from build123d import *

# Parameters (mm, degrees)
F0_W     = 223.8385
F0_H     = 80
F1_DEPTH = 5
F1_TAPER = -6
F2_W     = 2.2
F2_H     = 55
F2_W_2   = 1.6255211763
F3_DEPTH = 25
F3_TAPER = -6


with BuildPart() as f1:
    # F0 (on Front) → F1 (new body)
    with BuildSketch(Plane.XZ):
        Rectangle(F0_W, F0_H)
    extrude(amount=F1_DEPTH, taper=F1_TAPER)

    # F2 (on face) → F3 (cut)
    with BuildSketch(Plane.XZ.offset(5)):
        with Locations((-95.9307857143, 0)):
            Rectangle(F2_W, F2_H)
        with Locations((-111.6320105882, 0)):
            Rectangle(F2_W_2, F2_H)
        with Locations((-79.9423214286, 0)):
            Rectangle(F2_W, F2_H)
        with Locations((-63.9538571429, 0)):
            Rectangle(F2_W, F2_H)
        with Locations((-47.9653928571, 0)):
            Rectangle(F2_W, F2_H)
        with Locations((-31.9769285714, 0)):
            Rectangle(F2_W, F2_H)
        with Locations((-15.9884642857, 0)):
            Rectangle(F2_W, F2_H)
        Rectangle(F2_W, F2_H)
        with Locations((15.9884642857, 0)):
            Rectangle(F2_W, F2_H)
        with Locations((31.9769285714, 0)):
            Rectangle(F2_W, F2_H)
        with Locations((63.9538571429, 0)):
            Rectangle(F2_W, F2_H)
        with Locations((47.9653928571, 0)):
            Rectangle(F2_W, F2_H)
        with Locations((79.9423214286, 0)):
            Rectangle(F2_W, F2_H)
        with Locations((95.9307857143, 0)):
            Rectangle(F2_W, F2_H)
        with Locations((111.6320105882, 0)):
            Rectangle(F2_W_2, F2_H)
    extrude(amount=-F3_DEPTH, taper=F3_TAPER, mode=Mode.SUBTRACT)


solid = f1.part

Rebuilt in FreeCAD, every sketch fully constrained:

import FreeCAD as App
import Part
import Sketcher
from FreeCAD import Vector
Q = App.Units.Quantity

doc = App.newDocument("Part")
params = doc.addObject("Spreadsheet::Sheet", "Params")
for row, (alias, value) in enumerate([
    ("sketch1_height", "80 mm"),
    ("pad1_length", "5 mm"),
    ("pad1_taper", "6 deg"),
    ("sketch2_height", "55 mm"),
    ("sketch2_width", "2.2 mm"),
    ("pocket1_length", "25 mm"),
    ("pocket1_taper", "6 deg"),
], start=1):
    params.set(f"A{row}", alias)
    params.set(f"B{row}", "=" + value)
    params.setAlias(f"B{row}", alias)

body = doc.addObject("PartDesign::Body", "Body")

# Sketch on XZ plane
sketch1 = body.newObject("Sketcher::SketchObject", "Sketch")
sketch1.AttachmentSupport = (doc.getObject("XZ_Plane"), [""])
sketch1.MapMode = "FlatFace"
sketch1.addGeometry(Part.LineSegment(Vector(-111.91925, 40, 0), Vector(-111.91925, -40, 0)), False)
sketch1.addGeometry(Part.LineSegment(Vector(-111.91925, -40, 0), Vector(111.91925, -40, 0)), False)
sketch1.addGeometry(Part.LineSegment(Vector(111.91925, -40, 0), Vector(111.91925, 40, 0)), False)
sketch1.addGeometry(Part.LineSegment(Vector(111.91925, 40, 0), Vector(-111.91925, 40, 0)), False)
sketch1.addConstraint(Sketcher.Constraint("Coincident", 0, 2, 1, 1))
sketch1.addConstraint(Sketcher.Constraint("Coincident", 1, 2, 2, 1))
sketch1.addConstraint(Sketcher.Constraint("Coincident", 2, 2, 3, 1))
sketch1.addConstraint(Sketcher.Constraint("Coincident", 3, 2, 0, 1))
sketch1.addConstraint(Sketcher.Constraint("Vertical", 0))
sketch1.addConstraint(Sketcher.Constraint("Horizontal", 1))
sketch1.addConstraint(Sketcher.Constraint("Vertical", 2))
sketch1.addConstraint(Sketcher.Constraint("Horizontal", 3))
sketch1.addConstraint(Sketcher.Constraint("Symmetric", 0, 2, 2, 2, -1, 1))
sketch1.addConstraint(Sketcher.Constraint("DistanceY", 0, 2, 0, 1, Q("80 mm")))
sketch1.addConstraint(Sketcher.Constraint("DistanceX", 1, 1, 1, 2, Q("223.8385 mm")))
sketch1.setExpression("Constraints[9]", "Params.sketch1_height")
pad1 = body.newObject("PartDesign::Pad", "Pad")
pad1.Profile = sketch1
pad1.setExpression("Length", "Params.pad1_length")
pad1.setExpression("TaperAngle", "Params.pad1_taper")

# Sketch on XZ plane
sketch2 = body.newObject("Sketcher::SketchObject", "Sketch001")
sketch2.AttachmentSupport = (doc.getObject("XZ_Plane"), [""])
sketch2.MapMode = "FlatFace"
sketch2.AttachmentOffset = App.Placement(Vector(0, 0, 5), App.Rotation())
sketch2.addGeometry(Part.LineSegment(Vector(-97.030786, 27.5, 0), Vector(-97.030786, -27.5, 0)), False)
sketch2.addGeometry(Part.LineSegment(Vector(-97.030786, -27.5, 0), Vector(-94.830786, -27.5, 0)), False)
sketch2.addGeometry(Part.LineSegment(Vector(-94.830786, -27.5, 0), Vector(-94.830786, 27.5, 0)), False)
sketch2.addGeometry(Part.LineSegment(Vector(-94.830786, 27.5, 0), Vector(-97.030786, 27.5, 0)), False)
sketch2.addGeometry(Part.LineSegment(Vector(-112.444771, 27.5, 0), Vector(-112.444771, -27.5, 0)), False)
sketch2.addGeometry(Part.LineSegment(Vector(-112.444771, -27.5, 0), Vector(-110.81925, -27.5, 0)), False)
sketch2.addGeometry(Part.LineSegment(Vector(-110.81925, -27.5, 0), Vector(-110.81925, 27.5, 0)), False)
sketch2.addGeometry(Part.LineSegment(Vector(-110.81925, 27.5, 0), Vector(-112.444771, 27.5, 0)), False)
sketch2.addGeometry(Part.LineSegment(Vector(-81.042321, 27.5, 0), Vector(-81.042321, -27.5, 0)), False)
sketch2.addGeometry(Part.LineSegment(Vector(-81.042321, -27.5, 0), Vector(-78.842321, -27.5, 0)), False)
sketch2.addGeometry(Part.LineSegment(Vector(-78.842321, -27.5, 0), Vector(-78.842321, 27.5, 0)), False)
sketch2.addGeometry(Part.LineSegment(Vector(-78.842321, 27.5, 0), Vector(-81.042321, 27.5, 0)), False)
sketch2.addGeometry(Part.LineSegment(Vector(-65.053857, 27.5, 0), Vector(-65.053857, -27.5, 0)), False)
sketch2.addGeometry(Part.LineSegment(Vector(-65.053857, -27.5, 0), Vector(-62.853857, -27.5, 0)), False)
sketch2.addGeometry(Part.LineSegment(Vector(-62.853857, -27.5, 0), Vector(-62.853857, 27.5, 0)), False)
sketch2.addGeometry(Part.LineSegment(Vector(-62.853857, 27.5, 0), Vector(-65.053857, 27.5, 0)), False)
sketch2.addGeometry(Part.LineSegment(Vector(-49.065393, 27.5, 0), Vector(-49.065393, -27.5, 0)), False)
sketch2.addGeometry(Part.LineSegment(Vector(-49.065393, -27.5, 0), Vector(-46.865393, -27.5, 0)), False)
sketch2.addGeometry(Part.LineSegment(Vector(-46.865393, -27.5, 0), Vector(-46.865393, 27.5, 0)), False)
sketch2.addGeometry(Part.LineSegment(Vector(-46.865393, 27.5, 0), Vector(-49.065393, 27.5, 0)), False)
sketch2.addGeometry(Part.LineSegment(Vector(-33.076929, 27.5, 0), Vector(-33.076929, -27.5, 0)), False)
sketch2.addGeometry(Part.LineSegment(Vector(-33.076929, -27.5, 0), Vector(-30.876929, -27.5, 0)), False)
sketch2.addGeometry(Part.LineSegment(Vector(-30.876929, -27.5, 0), Vector(-30.876929, 27.5, 0)), False)
sketch2.addGeometry(Part.LineSegment(Vector(-30.876929, 27.5, 0), Vector(-33.076929, 27.5, 0)), False)
sketch2.addGeometry(Part.LineSegment(Vector(-17.088464, 27.5, 0), Vector(-17.088464, -27.5, 0)), False)
sketch2.addGeometry(Part.LineSegment(Vector(-17.088464, -27.5, 0), Vector(-14.888464, -27.5, 0)), False)
sketch2.addGeometry(Part.LineSegment(Vector(-14.888464, -27.5, 0), Vector(-14.888464, 27.5, 0)), False)
sketch2.addGeometry(Part.LineSegment(Vector(-14.888464, 27.5, 0), Vector(-17.088464, 27.5, 0)), False)
sketch2.addGeometry(Part.LineSegment(Vector(-1.1, 27.5, 0), Vector(-1.1, -27.5, 0)), False)
sketch2.addGeometry(Part.LineSegment(Vector(-1.1, -27.5, 0), Vector(1.1, -27.5, 0)), False)
sketch2.addGeometry(Part.LineSegment(Vector(1.1, -27.5, 0), Vector(1.1, 27.5, 0)), False)
sketch2.addGeometry(Part.LineSegment(Vector(1.1, 27.5, 0), Vector(-1.1, 27.5, 0)), False)
sketch2.addGeometry(Part.LineSegment(Vector(14.888464, 27.5, 0), Vector(14.888464, -27.5, 0)), False)
sketch2.addGeometry(Part.LineSegment(Vector(14.888464, -27.5, 0), Vector(17.088464, -27.5, 0)), False)
sketch2.addGeometry(Part.LineSegment(Vector(17.088464, -27.5, 0), Vector(17.088464, 27.5, 0)), False)
sketch2.addGeometry(Part.LineSegment(Vector(17.088464, 27.5, 0), Vector(14.888464, 27.5, 0)), False)
sketch2.addGeometry(Part.LineSegment(Vector(30.876929, 27.5, 0), Vector(30.876929, -27.5, 0)), False)
sketch2.addGeometry(Part.LineSegment(Vector(30.876929, -27.5, 0), Vector(33.076929, -27.5, 0)), False)
sketch2.addGeometry(Part.LineSegment(Vector(33.076929, -27.5, 0), Vector(33.076929, 27.5, 0)), False)
sketch2.addGeometry(Part.LineSegment(Vector(33.076929, 27.5, 0), Vector(30.876929, 27.5, 0)), False)
sketch2.addGeometry(Part.LineSegment(Vector(62.853857, 27.5, 0), Vector(62.853857, -27.5, 0)), False)
sketch2.addGeometry(Part.LineSegment(Vector(62.853857, -27.5, 0), Vector(65.053857, -27.5, 0)), False)
sketch2.addGeometry(Part.LineSegment(Vector(65.053857, -27.5, 0), Vector(65.053857, 27.5, 0)), False)
sketch2.addGeometry(Part.LineSegment(Vector(65.053857, 27.5, 0), Vector(62.853857, 27.5, 0)), False)
sketch2.addGeometry(Part.LineSegment(Vector(46.865393, 27.5, 0), Vector(46.865393, -27.5, 0)), False)
sketch2.addGeometry(Part.LineSegment(Vector(46.865393, -27.5, 0), Vector(49.065393, -27.5, 0)), False)
sketch2.addGeometry(Part.LineSegment(Vector(49.065393, -27.5, 0), Vector(49.065393, 27.5, 0)), False)
sketch2.addGeometry(Part.LineSegment(Vector(49.065393, 27.5, 0), Vector(46.865393, 27.5, 0)), False)
sketch2.addGeometry(Part.LineSegment(Vector(78.842321, 27.5, 0), Vector(78.842321, -27.5, 0)), False)
sketch2.addGeometry(Part.LineSegment(Vector(78.842321, -27.5, 0), Vector(81.042321, -27.5, 0)), False)
sketch2.addGeometry(Part.LineSegment(Vector(81.042321, -27.5, 0), Vector(81.042321, 27.5, 0)), False)
sketch2.addGeometry(Part.LineSegment(Vector(81.042321, 27.5, 0), Vector(78.842321, 27.5, 0)), False)
sketch2.addGeometry(Part.LineSegment(Vector(94.830786, 27.5, 0), Vector(94.830786, -27.5, 0)), False)
sketch2.addGeometry(Part.LineSegment(Vector(94.830786, -27.5, 0), Vector(97.030786, -27.5, 0)), False)
sketch2.addGeometry(Part.LineSegment(Vector(97.030786, -27.5, 0), Vector(97.030786, 27.5, 0)), False)
sketch2.addGeometry(Part.LineSegment(Vector(97.030786, 27.5, 0), Vector(94.830786, 27.5, 0)), False)
sketch2.addGeometry(Part.LineSegment(Vector(110.81925, 27.5, 0), Vector(110.81925, -27.5, 0)), False)
sketch2.addGeometry(Part.LineSegment(Vector(110.81925, -27.5, 0), Vector(112.444771, -27.5, 0)), False)
sketch2.addGeometry(Part.LineSegment(Vector(112.444771, -27.5, 0), Vector(112.444771, 27.5, 0)), False)
sketch2.addGeometry(Part.LineSegment(Vector(112.444771, 27.5, 0), Vector(110.81925, 27.5, 0)), False)
sketch2.addConstraint(Sketcher.Constraint("Coincident", 0, 2, 1, 1))
sketch2.addConstraint(Sketcher.Constraint("Coincident", 1, 2, 2, 1))
sketch2.addConstraint(Sketcher.Constraint("Coincident", 2, 2, 3, 1))
sketch2.addConstraint(Sketcher.Constraint("Coincident", 3, 2, 0, 1))
sketch2.addConstraint(Sketcher.Constraint("Coincident", 4, 2, 5, 1))
sketch2.addConstraint(Sketcher.Constraint("Coincident", 5, 2, 6, 1))
sketch2.addConstraint(Sketcher.Constraint("Coincident", 6, 2, 7, 1))
sketch2.addConstraint(Sketcher.Constraint("Coincident", 7, 2, 4, 1))
sketch2.addConstraint(Sketcher.Constraint("Coincident", 8, 2, 9, 1))
sketch2.addConstraint(Sketcher.Constraint("Coincident", 9, 2, 10, 1))
sketch2.addConstraint(Sketcher.Constraint("Coincident", 10, 2, 11, 1))
sketch2.addConstraint(Sketcher.Constraint("Coincident", 11, 2, 8, 1))
sketch2.addConstraint(Sketcher.Constraint("Coincident", 12, 2, 13, 1))
sketch2.addConstraint(Sketcher.Constraint("Coincident", 13, 2, 14, 1))
sketch2.addConstraint(Sketcher.Constraint("Coincident", 14, 2, 15, 1))
sketch2.addConstraint(Sketcher.Constraint("Coincident", 15, 2, 12, 1))
sketch2.addConstraint(Sketcher.Constraint("Coincident", 16, 2, 17, 1))
sketch2.addConstraint(Sketcher.Constraint("Coincident", 17, 2, 18, 1))
sketch2.addConstraint(Sketcher.Constraint("Coincident", 18, 2, 19, 1))
sketch2.addConstraint(Sketcher.Constraint("Coincident", 19, 2, 16, 1))
sketch2.addConstraint(Sketcher.Constraint("Coincident", 20, 2, 21, 1))
sketch2.addConstraint(Sketcher.Constraint("Coincident", 21, 2, 22, 1))
sketch2.addConstraint(Sketcher.Constraint("Coincident", 22, 2, 23, 1))
sketch2.addConstraint(Sketcher.Constraint("Coincident", 23, 2, 20, 1))
sketch2.addConstraint(Sketcher.Constraint("Coincident", 24, 2, 25, 1))
sketch2.addConstraint(Sketcher.Constraint("Coincident", 25, 2, 26, 1))
sketch2.addConstraint(Sketcher.Constraint("Coincident", 26, 2, 27, 1))
sketch2.addConstraint(Sketcher.Constraint("Coincident", 27, 2, 24, 1))
sketch2.addConstraint(Sketcher.Constraint("Coincident", 28, 2, 29, 1))
sketch2.addConstraint(Sketcher.Constraint("Coincident", 29, 2, 30, 1))
sketch2.addConstraint(Sketcher.Constraint("Coincident", 30, 2, 31, 1))
sketch2.addConstraint(Sketcher.Constraint("Coincident", 31, 2, 28, 1))
sketch2.addConstraint(Sketcher.Constraint("Coincident", 32, 2, 33, 1))
sketch2.addConstraint(Sketcher.Constraint("Coincident", 33, 2, 34, 1))
sketch2.addConstraint(Sketcher.Constraint("Coincident", 34, 2, 35, 1))
sketch2.addConstraint(Sketcher.Constraint("Coincident", 35, 2, 32, 1))
sketch2.addConstraint(Sketcher.Constraint("Coincident", 36, 2, 37, 1))
sketch2.addConstraint(Sketcher.Constraint("Coincident", 37, 2, 38, 1))
sketch2.addConstraint(Sketcher.Constraint("Coincident", 38, 2, 39, 1))
sketch2.addConstraint(Sketcher.Constraint("Coincident", 39, 2, 36, 1))
sketch2.addConstraint(Sketcher.Constraint("Coincident", 40, 2, 41, 1))
sketch2.addConstraint(Sketcher.Constraint("Coincident", 41, 2, 42, 1))
sketch2.addConstraint(Sketcher.Constraint("Coincident", 42, 2, 43, 1))
sketch2.addConstraint(Sketcher.Constraint("Coincident", 43, 2, 40, 1))
sketch2.addConstraint(Sketcher.Constraint("Coincident", 44, 2, 45, 1))
sketch2.addConstraint(Sketcher.Constraint("Coincident", 45, 2, 46, 1))
sketch2.addConstraint(Sketcher.Constraint("Coincident", 46, 2, 47, 1))
sketch2.addConstraint(Sketcher.Constraint("Coincident", 47, 2, 44, 1))
sketch2.addConstraint(Sketcher.Constraint("Coincident", 48, 2, 49, 1))
sketch2.addConstraint(Sketcher.Constraint("Coincident", 49, 2, 50, 1))
sketch2.addConstraint(Sketcher.Constraint("Coincident", 50, 2, 51, 1))
sketch2.addConstraint(Sketcher.Constraint("Coincident", 51, 2, 48, 1))
sketch2.addConstraint(Sketcher.Constraint("Coincident", 52, 2, 53, 1))
sketch2.addConstraint(Sketcher.Constraint("Coincident", 53, 2, 54, 1))
sketch2.addConstraint(Sketcher.Constraint("Coincident", 54, 2, 55, 1))
sketch2.addConstraint(Sketcher.Constraint("Coincident", 55, 2, 52, 1))
sketch2.addConstraint(Sketcher.Constraint("Coincident", 56, 2, 57, 1))
sketch2.addConstraint(Sketcher.Constraint("Coincident", 57, 2, 58, 1))
sketch2.addConstraint(Sketcher.Constraint("Coincident", 58, 2, 59, 1))
sketch2.addConstraint(Sketcher.Constraint("Coincident", 59, 2, 56, 1))
sketch2.addConstraint(Sketcher.Constraint("Vertical", 0))
sketch2.addConstraint(Sketcher.Constraint("Horizontal", 1))
sketch2.addConstraint(Sketcher.Constraint("Vertical", 2))
sketch2.addConstraint(Sketcher.Constraint("Horizontal", 3))
sketch2.addConstraint(Sketcher.Constraint("Vertical", 4))
sketch2.addConstraint(Sketcher.Constraint("Horizontal", 5))
sketch2.addConstraint(Sketcher.Constraint("Vertical", 6))
sketch2.addConstraint(Sketcher.Constraint("Horizontal", 7))
sketch2.addConstraint(Sketcher.Constraint("Vertical", 8))
sketch2.addConstraint(Sketcher.Constraint("Horizontal", 9))
sketch2.addConstraint(Sketcher.Constraint("Vertical", 10))
sketch2.addConstraint(Sketcher.Constraint("Horizontal", 11))
sketch2.addConstraint(Sketcher.Constraint("Vertical", 12))
sketch2.addConstraint(Sketcher.Constraint("Horizontal", 13))
sketch2.addConstraint(Sketcher.Constraint("Vertical", 14))
sketch2.addConstraint(Sketcher.Constraint("Horizontal", 15))
sketch2.addConstraint(Sketcher.Constraint("Vertical", 16))
sketch2.addConstraint(Sketcher.Constraint("Horizontal", 17))
sketch2.addConstraint(Sketcher.Constraint("Vertical", 18))
sketch2.addConstraint(Sketcher.Constraint("Horizontal", 19))
sketch2.addConstraint(Sketcher.Constraint("Vertical", 20))
sketch2.addConstraint(Sketcher.Constraint("Horizontal", 21))
sketch2.addConstraint(Sketcher.Constraint("Vertical", 22))
sketch2.addConstraint(Sketcher.Constraint("Horizontal", 23))
sketch2.addConstraint(Sketcher.Constraint("Vertical", 24))
sketch2.addConstraint(Sketcher.Constraint("Horizontal", 25))
sketch2.addConstraint(Sketcher.Constraint("Vertical", 26))
sketch2.addConstraint(Sketcher.Constraint("Horizontal", 27))
sketch2.addConstraint(Sketcher.Constraint("Vertical", 28))
sketch2.addConstraint(Sketcher.Constraint("Horizontal", 29))
sketch2.addConstraint(Sketcher.Constraint("Vertical", 30))
sketch2.addConstraint(Sketcher.Constraint("Horizontal", 31))
sketch2.addConstraint(Sketcher.Constraint("Vertical", 32))
sketch2.addConstraint(Sketcher.Constraint("Horizontal", 33))
sketch2.addConstraint(Sketcher.Constraint("Vertical", 34))
sketch2.addConstraint(Sketcher.Constraint("Horizontal", 35))
sketch2.addConstraint(Sketcher.Constraint("Vertical", 36))
sketch2.addConstraint(Sketcher.Constraint("Horizontal", 37))
sketch2.addConstraint(Sketcher.Constraint("Vertical", 38))
sketch2.addConstraint(Sketcher.Constraint("Horizontal", 39))
sketch2.addConstraint(Sketcher.Constraint("Vertical", 40))
sketch2.addConstraint(Sketcher.Constraint("Horizontal", 41))
sketch2.addConstraint(Sketcher.Constraint("Vertical", 42))
sketch2.addConstraint(Sketcher.Constraint("Horizontal", 43))
sketch2.addConstraint(Sketcher.Constraint("Vertical", 44))
sketch2.addConstraint(Sketcher.Constraint("Horizontal", 45))
sketch2.addConstraint(Sketcher.Constraint("Vertical", 46))
sketch2.addConstraint(Sketcher.Constraint("Horizontal", 47))
sketch2.addConstraint(Sketcher.Constraint("Vertical", 48))
sketch2.addConstraint(Sketcher.Constraint("Horizontal", 49))
sketch2.addConstraint(Sketcher.Constraint("Vertical", 50))
sketch2.addConstraint(Sketcher.Constraint("Horizontal", 51))
sketch2.addConstraint(Sketcher.Constraint("Vertical", 52))
sketch2.addConstraint(Sketcher.Constraint("Horizontal", 53))
sketch2.addConstraint(Sketcher.Constraint("Vertical", 54))
sketch2.addConstraint(Sketcher.Constraint("Horizontal", 55))
sketch2.addConstraint(Sketcher.Constraint("Vertical", 56))
sketch2.addConstraint(Sketcher.Constraint("Horizontal", 57))
sketch2.addConstraint(Sketcher.Constraint("Vertical", 58))
sketch2.addConstraint(Sketcher.Constraint("Horizontal", 59))
sketch2.addConstraint(Sketcher.Constraint("Symmetric", 28, 2, 30, 2, -1, 1))
sketch2.addConstraint(Sketcher.Constraint("Symmetric", 26, 2, 32, 2, -1, 1))
sketch2.addConstraint(Sketcher.Constraint("Symmetric", 24, 2, 34, 2, -1, 1))
sketch2.addConstraint(Sketcher.Constraint("Symmetric", 22, 2, 36, 2, -1, 1))
sketch2.addConstraint(Sketcher.Constraint("Symmetric", 20, 2, 38, 2, -1, 1))
sketch2.addConstraint(Sketcher.Constraint("Symmetric", 14, 2, 40, 2, -1, 1))
sketch2.addConstraint(Sketcher.Constraint("Symmetric", 12, 2, 42, 2, -1, 1))
sketch2.addConstraint(Sketcher.Constraint("Symmetric", 18, 2, 44, 2, -1, 1))
sketch2.addConstraint(Sketcher.Constraint("Symmetric", 16, 2, 46, 2, -1, 1))
sketch2.addConstraint(Sketcher.Constraint("Symmetric", 10, 2, 48, 2, -1, 1))
sketch2.addConstraint(Sketcher.Constraint("Symmetric", 8, 2, 50, 2, -1, 1))
sketch2.addConstraint(Sketcher.Constraint("Symmetric", 2, 2, 52, 2, -1, 1))
sketch2.addConstraint(Sketcher.Constraint("Symmetric", 0, 2, 54, 2, -1, 1))
sketch2.addConstraint(Sketcher.Constraint("Symmetric", 6, 2, 56, 2, -1, 1))
sketch2.addConstraint(Sketcher.Constraint("Symmetric", 4, 2, 58, 2, -1, 1))
sketch2.addConstraint(Sketcher.Constraint("Horizontal", 1, 2, 4, 2))
sketch2.addConstraint(Sketcher.Constraint("Horizontal", 3, 2, 6, 2))
sketch2.addConstraint(Sketcher.Constraint("Horizontal", 5, 2, 8, 2))
sketch2.addConstraint(Sketcher.Constraint("Horizontal", 7, 2, 10, 2))
sketch2.addConstraint(Sketcher.Constraint("Horizontal", 9, 2, 12, 2))
sketch2.addConstraint(Sketcher.Constraint("Horizontal", 11, 2, 14, 2))
sketch2.addConstraint(Sketcher.Constraint("Horizontal", 13, 2, 16, 2))
sketch2.addConstraint(Sketcher.Constraint("Horizontal", 15, 2, 18, 2))
sketch2.addConstraint(Sketcher.Constraint("Horizontal", 17, 2, 20, 2))
sketch2.addConstraint(Sketcher.Constraint("Horizontal", 19, 2, 22, 2))
sketch2.addConstraint(Sketcher.Constraint("Horizontal", 21, 2, 24, 2))
sketch2.addConstraint(Sketcher.Constraint("Horizontal", 23, 2, 26, 2))
sketch2.addConstraint(Sketcher.Constraint("Horizontal", 25, 2, 28, 2))
sketch2.addConstraint(Sketcher.Constraint("Horizontal", 27, 2, 30, 2))
sketch2.addConstraint(Sketcher.Constraint("Equal", 3, 9))
sketch2.addConstraint(Sketcher.Constraint("Equal", 11, 13))
sketch2.addConstraint(Sketcher.Constraint("Equal", 15, 17))
sketch2.addConstraint(Sketcher.Constraint("Equal", 19, 21))
sketch2.addConstraint(Sketcher.Constraint("Equal", 23, 25))
sketch2.addConstraint(Sketcher.Constraint("Equal", 27, 29))
sketch2.addConstraint(Sketcher.Constraint("DistanceY", 0, 2, 0, 1, Q("55 mm")))
sketch2.addConstraint(Sketcher.Constraint("DistanceX", 1, 1, 1, 2, Q("2.2 mm")))
sketch2.addConstraint(Sketcher.Constraint("DistanceX", 5, 1, 5, 2, Q("1.625521 mm")))
sketch2.addConstraint(Sketcher.Constraint("DistanceX", 4, 2, -1, 1, Q("112.444771 mm")))
sketch2.addConstraint(Sketcher.Constraint("DistanceX", 8, 2, -1, 1, Q("81.042321 mm")))
sketch2.addConstraint(Sketcher.Constraint("DistanceX", 20, 2, -1, 1, Q("33.076929 mm")))
sketch2.addConstraint(Sketcher.Constraint("DistanceX", 1, 2, 12, 2, Q("29.776929 mm")))
sketch2.addConstraint(Sketcher.Constraint("DistanceX", 9, 2, 16, 2, Q("29.776929 mm")))
sketch2.addConstraint(Sketcher.Constraint("DistanceX", 13, 2, 20, 2, Q("29.776929 mm")))
sketch2.addConstraint(Sketcher.Constraint("DistanceX", 17, 2, 24, 2, Q("29.776929 mm")))
sketch2.setExpression("Constraints[155]", "Params.sketch2_height")
sketch2.setExpression("Constraints[156]", "Params.sketch2_width")
pocket1 = body.newObject("PartDesign::Pocket", "Pocket")
pocket1.Profile = sketch2
pocket1.setExpression("Length", "Params.pocket1_length")
pocket1.setExpression("TaperAngle", "Params.pocket1_taper")

doc.recompute()
